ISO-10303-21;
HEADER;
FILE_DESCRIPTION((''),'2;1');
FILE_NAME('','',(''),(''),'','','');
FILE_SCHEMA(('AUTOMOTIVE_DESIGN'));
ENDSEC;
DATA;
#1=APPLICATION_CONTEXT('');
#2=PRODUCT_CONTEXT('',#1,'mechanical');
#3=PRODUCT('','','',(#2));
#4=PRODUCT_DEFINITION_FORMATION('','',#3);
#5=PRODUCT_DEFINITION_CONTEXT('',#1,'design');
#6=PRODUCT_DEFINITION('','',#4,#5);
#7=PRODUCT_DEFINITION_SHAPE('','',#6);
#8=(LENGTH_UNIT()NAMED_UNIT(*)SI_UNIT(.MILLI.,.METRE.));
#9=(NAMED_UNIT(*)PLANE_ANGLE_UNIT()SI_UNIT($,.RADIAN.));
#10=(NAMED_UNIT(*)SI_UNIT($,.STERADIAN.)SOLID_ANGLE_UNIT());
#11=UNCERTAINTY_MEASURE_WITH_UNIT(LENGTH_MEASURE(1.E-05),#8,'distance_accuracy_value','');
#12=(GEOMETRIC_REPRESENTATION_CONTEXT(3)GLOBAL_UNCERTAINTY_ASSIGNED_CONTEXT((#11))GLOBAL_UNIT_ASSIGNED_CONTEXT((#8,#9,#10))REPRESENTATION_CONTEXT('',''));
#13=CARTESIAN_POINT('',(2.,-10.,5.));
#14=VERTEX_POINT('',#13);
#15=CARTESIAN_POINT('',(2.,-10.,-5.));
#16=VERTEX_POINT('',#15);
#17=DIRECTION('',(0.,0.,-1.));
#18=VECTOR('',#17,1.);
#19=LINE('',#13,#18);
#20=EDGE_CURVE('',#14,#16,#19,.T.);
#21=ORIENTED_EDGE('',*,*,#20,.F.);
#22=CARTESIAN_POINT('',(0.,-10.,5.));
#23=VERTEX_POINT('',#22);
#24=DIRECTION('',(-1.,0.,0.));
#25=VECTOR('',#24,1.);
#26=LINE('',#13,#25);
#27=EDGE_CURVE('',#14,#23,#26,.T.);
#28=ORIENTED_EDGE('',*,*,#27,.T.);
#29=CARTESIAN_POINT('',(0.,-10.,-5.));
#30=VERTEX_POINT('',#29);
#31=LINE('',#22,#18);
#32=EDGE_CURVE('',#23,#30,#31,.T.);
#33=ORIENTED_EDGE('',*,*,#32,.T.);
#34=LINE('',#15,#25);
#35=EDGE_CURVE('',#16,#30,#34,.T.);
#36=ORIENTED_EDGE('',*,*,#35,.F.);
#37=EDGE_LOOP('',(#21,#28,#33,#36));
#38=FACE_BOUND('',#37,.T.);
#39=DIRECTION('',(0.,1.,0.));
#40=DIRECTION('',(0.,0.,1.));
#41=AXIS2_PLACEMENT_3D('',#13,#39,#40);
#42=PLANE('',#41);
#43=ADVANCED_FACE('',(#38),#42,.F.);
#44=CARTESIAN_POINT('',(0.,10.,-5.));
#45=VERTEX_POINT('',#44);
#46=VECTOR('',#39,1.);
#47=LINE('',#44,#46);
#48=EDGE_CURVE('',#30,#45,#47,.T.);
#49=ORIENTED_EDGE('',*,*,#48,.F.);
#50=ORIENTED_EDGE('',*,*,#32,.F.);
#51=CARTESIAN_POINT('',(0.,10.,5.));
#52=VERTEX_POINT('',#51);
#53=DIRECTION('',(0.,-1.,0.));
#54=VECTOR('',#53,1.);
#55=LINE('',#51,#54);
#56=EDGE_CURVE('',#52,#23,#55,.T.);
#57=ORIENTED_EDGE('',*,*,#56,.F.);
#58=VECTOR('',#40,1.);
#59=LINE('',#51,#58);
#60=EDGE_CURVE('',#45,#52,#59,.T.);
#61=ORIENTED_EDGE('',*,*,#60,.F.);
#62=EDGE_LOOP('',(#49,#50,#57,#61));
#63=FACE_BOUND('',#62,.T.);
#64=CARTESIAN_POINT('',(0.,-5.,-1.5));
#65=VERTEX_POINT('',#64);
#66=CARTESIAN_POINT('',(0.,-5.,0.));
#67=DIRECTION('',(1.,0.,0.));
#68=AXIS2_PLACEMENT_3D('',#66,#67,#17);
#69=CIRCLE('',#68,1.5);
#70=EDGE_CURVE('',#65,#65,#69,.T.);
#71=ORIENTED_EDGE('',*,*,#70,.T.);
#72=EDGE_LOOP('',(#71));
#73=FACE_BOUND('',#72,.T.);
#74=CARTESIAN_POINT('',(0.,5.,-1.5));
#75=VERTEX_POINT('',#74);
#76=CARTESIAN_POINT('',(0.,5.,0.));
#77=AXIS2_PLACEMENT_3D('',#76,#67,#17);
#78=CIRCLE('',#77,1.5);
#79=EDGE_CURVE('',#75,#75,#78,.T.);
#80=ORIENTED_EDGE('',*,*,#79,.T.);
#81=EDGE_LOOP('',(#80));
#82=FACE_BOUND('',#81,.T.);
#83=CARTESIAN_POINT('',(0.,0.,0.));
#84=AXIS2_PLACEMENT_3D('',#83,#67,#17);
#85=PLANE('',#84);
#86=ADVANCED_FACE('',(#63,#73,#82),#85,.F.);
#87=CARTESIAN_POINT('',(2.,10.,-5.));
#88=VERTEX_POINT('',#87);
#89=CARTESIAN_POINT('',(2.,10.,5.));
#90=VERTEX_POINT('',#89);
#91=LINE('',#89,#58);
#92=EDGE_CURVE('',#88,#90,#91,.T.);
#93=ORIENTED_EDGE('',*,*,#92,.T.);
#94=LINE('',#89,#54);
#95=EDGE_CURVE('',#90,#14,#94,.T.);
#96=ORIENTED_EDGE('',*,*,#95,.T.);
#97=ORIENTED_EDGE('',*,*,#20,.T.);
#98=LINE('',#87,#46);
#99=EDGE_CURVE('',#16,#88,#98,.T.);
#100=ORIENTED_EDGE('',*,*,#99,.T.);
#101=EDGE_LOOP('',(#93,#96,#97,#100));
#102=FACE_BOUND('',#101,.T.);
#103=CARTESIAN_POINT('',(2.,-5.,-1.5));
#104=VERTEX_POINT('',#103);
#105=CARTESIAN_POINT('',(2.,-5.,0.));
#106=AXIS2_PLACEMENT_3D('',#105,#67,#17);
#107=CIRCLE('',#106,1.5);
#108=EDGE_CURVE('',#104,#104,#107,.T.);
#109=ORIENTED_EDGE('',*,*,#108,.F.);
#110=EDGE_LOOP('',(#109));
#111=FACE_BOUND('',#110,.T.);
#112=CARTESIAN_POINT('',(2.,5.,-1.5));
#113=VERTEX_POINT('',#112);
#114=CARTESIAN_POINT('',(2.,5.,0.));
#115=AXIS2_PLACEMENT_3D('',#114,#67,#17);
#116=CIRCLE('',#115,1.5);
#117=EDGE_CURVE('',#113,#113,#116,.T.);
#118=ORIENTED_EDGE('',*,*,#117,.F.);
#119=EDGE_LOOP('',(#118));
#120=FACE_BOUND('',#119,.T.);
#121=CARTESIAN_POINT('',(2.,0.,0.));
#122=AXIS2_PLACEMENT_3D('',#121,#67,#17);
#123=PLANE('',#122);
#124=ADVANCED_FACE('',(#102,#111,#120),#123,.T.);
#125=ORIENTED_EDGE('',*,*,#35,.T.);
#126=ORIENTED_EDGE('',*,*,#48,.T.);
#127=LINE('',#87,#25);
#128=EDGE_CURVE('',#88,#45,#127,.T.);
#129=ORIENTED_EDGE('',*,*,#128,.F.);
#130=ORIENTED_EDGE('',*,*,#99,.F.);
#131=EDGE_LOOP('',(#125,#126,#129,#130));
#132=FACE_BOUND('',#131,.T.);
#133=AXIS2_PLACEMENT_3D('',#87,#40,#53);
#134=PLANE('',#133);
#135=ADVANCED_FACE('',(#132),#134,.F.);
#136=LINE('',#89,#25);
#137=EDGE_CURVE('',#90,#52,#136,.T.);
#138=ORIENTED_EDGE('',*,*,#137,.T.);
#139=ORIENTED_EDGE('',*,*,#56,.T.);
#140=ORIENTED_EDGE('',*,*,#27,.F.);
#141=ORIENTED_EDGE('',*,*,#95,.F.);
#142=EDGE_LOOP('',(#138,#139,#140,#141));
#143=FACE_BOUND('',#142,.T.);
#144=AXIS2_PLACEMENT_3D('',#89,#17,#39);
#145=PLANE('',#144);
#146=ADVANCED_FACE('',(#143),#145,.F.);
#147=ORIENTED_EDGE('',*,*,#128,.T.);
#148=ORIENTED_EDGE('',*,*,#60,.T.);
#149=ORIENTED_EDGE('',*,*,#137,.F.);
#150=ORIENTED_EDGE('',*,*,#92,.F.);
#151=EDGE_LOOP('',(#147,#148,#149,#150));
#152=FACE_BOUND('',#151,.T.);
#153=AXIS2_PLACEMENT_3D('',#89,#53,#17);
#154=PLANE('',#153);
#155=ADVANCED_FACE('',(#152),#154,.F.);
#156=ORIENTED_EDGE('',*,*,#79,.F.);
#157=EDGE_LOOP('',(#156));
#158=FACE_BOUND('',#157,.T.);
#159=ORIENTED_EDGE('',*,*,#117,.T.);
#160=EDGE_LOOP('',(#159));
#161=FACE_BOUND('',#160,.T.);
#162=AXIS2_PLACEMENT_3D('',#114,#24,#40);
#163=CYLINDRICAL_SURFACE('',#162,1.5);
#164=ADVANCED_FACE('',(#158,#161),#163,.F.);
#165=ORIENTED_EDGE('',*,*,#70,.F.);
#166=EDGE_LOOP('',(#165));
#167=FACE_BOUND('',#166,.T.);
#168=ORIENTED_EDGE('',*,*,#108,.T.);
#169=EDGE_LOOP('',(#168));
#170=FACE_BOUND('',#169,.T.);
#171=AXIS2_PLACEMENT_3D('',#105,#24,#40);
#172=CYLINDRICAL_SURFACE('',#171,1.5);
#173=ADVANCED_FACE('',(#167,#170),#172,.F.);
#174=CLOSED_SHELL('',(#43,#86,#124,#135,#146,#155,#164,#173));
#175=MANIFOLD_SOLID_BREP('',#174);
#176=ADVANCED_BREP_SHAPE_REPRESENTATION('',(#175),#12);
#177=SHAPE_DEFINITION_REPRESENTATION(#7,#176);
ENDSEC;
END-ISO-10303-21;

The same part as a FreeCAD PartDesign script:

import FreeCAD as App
import Part
import Sketcher

doc = App.newDocument("Part")
body = doc.addObject("PartDesign::Body", "Body")

sketch1 = body.newObject("Sketcher::SketchObject", "Sketch")
sketch1.AttachmentSupport = (doc.getObject("YZ_Plane"), [""])
sketch1.MapMode = "FlatFace"
sketch1.addGeometry([
    Part.LineSegment(App.Vector(10, 5, 0), App.Vector(-10, 5, 0)),
    Part.LineSegment(App.Vector(-10, 5, 0), App.Vector(-10, -5, 0)),
    Part.LineSegment(App.Vector(-10, -5, 0), App.Vector(10, -5, 0)),
    Part.LineSegment(App.Vector(10, -5, 0), App.Vector(10, 5, 0)),
    Part.Circle(App.Vector(-5, 0, 0), App.Vector(0, 0, 1), 1.5),
    Part.Circle(App.Vector(5, 0, 0), App.Vector(0, 0, 1), 1.5),
], False)
sketch1.addConstraint([
    Sketcher.Constraint("Coincident", 0, 2, 1, 1),
    Sketcher.Constraint("Coincident", 1, 2, 2, 1),
    Sketcher.Constraint("Coincident", 2, 2, 3, 1),
    Sketcher.Constraint("Coincident", 3, 2, 0, 1),
    Sketcher.Constraint("Horizontal", 0),
    Sketcher.Constraint("Vertical", 1),
    Sketcher.Constraint("Horizontal", 2),
    Sketcher.Constraint("Vertical", 3),
    Sketcher.Constraint("Equal", 4, 5),
    Sketcher.Constraint("Symmetric", 4, 3, 5, 3, -1, 1),
    Sketcher.Constraint("Symmetric", 0, 2, 2, 2, -1, 1),
    Sketcher.Constraint("PointOnObject", 4, 3, -1),
    Sketcher.Constraint("Diameter", 4, 3.0),
    Sketcher.Constraint("DistanceX", 0, 2, 0, 1, 20.0),
    Sketcher.Constraint("DistanceY", 1, 2, 1, 1, 10.0),
    Sketcher.Constraint("DistanceX", 4, 3, -1, 1, 5.0),
])
pad1 = body.newObject("PartDesign::Pad", "Pad")
pad1.Profile = sketch1
pad1.Length = 2

doc.recompute()
